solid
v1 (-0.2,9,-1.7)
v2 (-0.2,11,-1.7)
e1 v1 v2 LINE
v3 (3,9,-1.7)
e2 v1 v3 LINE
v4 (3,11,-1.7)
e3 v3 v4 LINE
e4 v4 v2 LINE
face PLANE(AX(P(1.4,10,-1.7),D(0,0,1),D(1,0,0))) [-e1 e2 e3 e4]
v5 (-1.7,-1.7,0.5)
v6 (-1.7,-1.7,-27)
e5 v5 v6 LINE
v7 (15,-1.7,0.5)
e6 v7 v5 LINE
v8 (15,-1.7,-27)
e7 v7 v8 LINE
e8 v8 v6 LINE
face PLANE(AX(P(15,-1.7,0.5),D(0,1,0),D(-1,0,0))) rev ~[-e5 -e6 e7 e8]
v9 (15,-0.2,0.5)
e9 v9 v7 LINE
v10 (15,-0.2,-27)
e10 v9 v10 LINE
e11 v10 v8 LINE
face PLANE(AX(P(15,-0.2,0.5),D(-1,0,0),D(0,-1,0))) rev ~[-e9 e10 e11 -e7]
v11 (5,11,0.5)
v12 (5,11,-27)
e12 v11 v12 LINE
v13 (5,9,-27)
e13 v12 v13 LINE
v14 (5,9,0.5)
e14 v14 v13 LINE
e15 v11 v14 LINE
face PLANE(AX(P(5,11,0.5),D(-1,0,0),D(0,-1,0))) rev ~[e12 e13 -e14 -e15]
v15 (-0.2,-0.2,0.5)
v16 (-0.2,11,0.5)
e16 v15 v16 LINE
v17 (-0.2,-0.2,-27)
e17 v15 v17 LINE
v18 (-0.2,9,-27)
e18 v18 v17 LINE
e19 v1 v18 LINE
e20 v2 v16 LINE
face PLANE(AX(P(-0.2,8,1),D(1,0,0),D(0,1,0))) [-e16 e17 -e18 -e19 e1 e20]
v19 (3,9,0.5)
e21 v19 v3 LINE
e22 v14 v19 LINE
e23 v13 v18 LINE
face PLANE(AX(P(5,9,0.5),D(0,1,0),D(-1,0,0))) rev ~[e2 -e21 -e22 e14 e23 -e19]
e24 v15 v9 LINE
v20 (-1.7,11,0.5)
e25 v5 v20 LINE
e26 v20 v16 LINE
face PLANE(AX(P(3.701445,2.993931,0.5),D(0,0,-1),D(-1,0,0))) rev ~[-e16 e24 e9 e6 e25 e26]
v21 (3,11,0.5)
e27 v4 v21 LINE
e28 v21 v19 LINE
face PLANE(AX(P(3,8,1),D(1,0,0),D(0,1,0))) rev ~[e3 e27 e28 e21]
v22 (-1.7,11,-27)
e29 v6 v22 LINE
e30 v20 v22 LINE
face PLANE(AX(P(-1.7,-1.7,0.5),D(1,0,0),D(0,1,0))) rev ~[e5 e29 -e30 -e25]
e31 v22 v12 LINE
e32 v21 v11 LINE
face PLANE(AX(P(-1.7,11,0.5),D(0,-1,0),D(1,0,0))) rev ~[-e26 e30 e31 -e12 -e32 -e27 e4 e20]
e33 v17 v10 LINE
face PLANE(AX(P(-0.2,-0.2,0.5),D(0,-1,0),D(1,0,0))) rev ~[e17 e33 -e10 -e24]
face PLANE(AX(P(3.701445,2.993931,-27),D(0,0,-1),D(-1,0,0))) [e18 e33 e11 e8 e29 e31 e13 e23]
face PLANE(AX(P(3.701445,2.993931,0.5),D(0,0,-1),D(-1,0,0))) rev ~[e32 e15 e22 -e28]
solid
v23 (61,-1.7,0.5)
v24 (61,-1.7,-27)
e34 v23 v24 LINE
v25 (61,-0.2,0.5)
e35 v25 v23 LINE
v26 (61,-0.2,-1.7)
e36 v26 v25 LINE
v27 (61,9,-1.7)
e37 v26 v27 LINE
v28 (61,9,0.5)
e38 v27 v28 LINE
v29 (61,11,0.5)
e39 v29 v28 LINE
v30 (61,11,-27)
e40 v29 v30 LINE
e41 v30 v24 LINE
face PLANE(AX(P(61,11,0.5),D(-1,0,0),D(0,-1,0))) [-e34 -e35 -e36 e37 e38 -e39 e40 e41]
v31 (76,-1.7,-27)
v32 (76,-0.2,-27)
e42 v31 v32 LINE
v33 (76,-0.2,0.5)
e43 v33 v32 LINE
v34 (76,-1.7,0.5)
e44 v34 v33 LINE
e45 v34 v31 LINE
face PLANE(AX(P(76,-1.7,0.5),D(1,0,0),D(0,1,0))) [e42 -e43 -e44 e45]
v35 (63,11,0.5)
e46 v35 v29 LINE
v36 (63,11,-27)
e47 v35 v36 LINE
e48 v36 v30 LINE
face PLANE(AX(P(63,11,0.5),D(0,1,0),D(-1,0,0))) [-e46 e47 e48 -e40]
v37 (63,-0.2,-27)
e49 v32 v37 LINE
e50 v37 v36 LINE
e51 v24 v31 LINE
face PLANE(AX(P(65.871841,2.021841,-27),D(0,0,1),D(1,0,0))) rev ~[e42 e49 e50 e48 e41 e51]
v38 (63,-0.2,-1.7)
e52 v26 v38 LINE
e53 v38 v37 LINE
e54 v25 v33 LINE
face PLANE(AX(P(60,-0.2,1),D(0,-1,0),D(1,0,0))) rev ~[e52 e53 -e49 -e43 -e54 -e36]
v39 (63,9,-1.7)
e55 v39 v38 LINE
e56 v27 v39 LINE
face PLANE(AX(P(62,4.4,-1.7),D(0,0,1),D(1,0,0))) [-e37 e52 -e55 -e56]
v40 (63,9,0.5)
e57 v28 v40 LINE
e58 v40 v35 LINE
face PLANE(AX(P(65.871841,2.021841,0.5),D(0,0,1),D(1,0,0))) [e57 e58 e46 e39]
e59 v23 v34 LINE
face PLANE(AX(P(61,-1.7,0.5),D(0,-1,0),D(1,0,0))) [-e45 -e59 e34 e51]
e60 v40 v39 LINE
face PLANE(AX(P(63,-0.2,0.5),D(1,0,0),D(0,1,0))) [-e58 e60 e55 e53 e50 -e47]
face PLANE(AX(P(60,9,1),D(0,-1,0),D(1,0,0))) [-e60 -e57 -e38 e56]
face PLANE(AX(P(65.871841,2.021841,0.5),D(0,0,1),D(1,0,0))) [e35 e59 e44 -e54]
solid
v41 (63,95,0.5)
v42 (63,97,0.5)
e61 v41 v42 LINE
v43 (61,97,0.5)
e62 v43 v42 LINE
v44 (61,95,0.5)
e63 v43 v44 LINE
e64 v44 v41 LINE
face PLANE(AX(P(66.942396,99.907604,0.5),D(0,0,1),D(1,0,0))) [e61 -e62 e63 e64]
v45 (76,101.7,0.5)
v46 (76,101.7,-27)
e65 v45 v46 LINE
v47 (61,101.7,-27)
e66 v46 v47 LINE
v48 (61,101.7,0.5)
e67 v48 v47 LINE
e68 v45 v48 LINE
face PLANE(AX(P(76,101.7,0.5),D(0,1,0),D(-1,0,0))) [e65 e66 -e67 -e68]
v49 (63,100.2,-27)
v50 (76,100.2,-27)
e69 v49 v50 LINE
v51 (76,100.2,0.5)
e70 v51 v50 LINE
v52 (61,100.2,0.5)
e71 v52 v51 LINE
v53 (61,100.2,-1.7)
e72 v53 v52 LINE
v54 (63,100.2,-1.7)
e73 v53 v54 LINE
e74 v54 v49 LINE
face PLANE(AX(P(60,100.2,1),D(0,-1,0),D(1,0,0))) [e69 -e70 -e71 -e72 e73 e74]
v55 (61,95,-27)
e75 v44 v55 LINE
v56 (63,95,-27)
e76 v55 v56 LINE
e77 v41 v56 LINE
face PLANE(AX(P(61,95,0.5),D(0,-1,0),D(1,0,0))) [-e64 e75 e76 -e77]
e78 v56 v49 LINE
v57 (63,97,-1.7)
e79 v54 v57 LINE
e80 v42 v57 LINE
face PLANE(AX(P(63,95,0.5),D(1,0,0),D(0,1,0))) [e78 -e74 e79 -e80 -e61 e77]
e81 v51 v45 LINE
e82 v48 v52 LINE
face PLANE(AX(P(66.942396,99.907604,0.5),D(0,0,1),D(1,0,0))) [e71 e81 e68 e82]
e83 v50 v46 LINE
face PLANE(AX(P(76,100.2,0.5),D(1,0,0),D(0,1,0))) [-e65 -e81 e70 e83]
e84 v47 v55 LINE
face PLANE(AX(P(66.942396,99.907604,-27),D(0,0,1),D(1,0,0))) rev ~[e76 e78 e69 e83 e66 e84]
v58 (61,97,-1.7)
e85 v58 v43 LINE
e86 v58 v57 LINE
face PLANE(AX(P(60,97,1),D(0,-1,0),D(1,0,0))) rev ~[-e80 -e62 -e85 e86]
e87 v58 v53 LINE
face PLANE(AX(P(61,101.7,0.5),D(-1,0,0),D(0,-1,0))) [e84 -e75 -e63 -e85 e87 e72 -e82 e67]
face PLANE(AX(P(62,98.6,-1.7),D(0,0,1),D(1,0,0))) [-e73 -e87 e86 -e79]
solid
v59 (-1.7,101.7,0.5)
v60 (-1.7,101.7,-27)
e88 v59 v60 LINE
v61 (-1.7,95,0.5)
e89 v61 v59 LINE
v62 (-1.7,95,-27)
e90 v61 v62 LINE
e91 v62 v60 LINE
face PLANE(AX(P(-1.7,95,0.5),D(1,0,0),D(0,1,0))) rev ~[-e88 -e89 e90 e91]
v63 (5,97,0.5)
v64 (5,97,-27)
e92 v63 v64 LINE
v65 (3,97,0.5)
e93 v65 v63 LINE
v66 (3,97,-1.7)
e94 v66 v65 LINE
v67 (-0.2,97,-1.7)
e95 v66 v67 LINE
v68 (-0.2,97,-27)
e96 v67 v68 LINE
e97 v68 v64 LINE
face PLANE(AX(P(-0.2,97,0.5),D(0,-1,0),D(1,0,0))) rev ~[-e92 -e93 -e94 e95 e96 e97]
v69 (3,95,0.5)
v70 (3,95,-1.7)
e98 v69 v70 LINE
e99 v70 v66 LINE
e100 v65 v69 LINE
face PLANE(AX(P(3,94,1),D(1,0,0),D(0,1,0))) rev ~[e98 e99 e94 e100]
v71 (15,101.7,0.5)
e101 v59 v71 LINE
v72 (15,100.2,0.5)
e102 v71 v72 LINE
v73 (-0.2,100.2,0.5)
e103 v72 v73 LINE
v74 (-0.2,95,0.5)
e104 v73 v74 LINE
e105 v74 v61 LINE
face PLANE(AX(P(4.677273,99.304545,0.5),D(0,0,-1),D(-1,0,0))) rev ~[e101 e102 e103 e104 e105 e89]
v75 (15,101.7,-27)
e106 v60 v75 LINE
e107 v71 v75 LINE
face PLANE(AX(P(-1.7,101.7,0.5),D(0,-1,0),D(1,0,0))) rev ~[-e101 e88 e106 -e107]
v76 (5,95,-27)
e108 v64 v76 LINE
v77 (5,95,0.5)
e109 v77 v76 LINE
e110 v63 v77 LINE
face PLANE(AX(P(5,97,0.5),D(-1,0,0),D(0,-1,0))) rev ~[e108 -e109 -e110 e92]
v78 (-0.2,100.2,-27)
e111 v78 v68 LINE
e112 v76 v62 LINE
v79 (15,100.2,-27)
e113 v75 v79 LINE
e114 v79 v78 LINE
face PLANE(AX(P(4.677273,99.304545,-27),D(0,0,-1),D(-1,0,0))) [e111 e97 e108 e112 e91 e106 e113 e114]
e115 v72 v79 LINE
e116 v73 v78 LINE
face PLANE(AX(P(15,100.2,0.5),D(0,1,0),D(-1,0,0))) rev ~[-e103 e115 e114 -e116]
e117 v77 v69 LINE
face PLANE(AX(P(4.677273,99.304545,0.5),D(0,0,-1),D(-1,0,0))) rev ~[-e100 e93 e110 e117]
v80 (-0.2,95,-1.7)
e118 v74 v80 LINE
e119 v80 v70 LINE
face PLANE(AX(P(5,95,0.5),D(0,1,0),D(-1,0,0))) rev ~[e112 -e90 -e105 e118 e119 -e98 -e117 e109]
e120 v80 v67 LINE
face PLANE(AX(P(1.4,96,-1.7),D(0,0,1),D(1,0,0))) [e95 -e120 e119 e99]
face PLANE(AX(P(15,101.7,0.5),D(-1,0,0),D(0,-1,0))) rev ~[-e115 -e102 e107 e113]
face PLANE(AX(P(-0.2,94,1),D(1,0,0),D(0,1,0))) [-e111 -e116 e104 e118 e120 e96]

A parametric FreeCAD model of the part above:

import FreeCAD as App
import Part
import Sketcher

doc = App.newDocument("Part")
body = doc.addObject("PartDesign::Body", "Body")
body.AllowCompound = True

sketch1 = body.newObject("Sketcher::SketchObject", "Sketch")
sketch1.AttachmentSupport = (doc.getObject("XY_Plane"), [""])
sketch1.MapMode = "FlatFace"
sketch1.AttachmentOffset = App.Placement(App.Vector(0, 0, 1), App.Rotation())
sketch1.addGeometry([
    Part.LineSegment(App.Vector(-0.2, 98, 0), App.Vector(-0.2, 94, 0)),
    Part.LineSegment(App.Vector(-0.2, 94, 0), App.Vector(3, 94, 0)),
    Part.LineSegment(App.Vector(3, 94, 0), App.Vector(3, 98, 0)),
    Part.LineSegment(App.Vector(3, 98, 0), App.Vector(-0.2, 98, 0)),
    Part.LineSegment(App.Vector(60, 100.2, 0), App.Vector(60, 97, 0)),
    Part.LineSegment(App.Vector(60, 97, 0), App.Vector(64, 97, 0)),
    Part.LineSegment(App.Vector(64, 97, 0), App.Vector(64, 100.2, 0)),
    Part.LineSegment(App.Vector(64, 100.2, 0), App.Vector(60, 100.2, 0)),
    Part.LineSegment(App.Vector(-0.2, 12, 0), App.Vector(-0.2, 8, 0)),
    Part.LineSegment(App.Vector(-0.2, 8, 0), App.Vector(3, 8, 0)),
    Part.LineSegment(App.Vector(3, 8, 0), App.Vector(3, 12, 0)),
    Part.LineSegment(App.Vector(3, 12, 0), App.Vector(-0.2, 12, 0)),
    Part.LineSegment(App.Vector(60, 9, 0), App.Vector(60, -0.2, 0)),
    Part.LineSegment(App.Vector(60, -0.2, 0), App.Vector(64, -0.2, 0)),
    Part.LineSegment(App.Vector(64, -0.2, 0), App.Vector(64, 9, 0)),
    Part.LineSegment(App.Vector(64, 9, 0), App.Vector(60, 9, 0)),
], False)
sketch1.addConstraint([
    Sketcher.Constraint("Coincident", 0, 2, 1, 1),
    Sketcher.Constraint("Coincident", 1, 2, 2, 1),
    Sketcher.Constraint("Coincident", 2, 2, 3, 1),
    Sketcher.Constraint("Coincident", 3, 2, 0, 1),
    Sketcher.Constraint("Coincident", 4, 2, 5, 1),
    Sketcher.Constraint("Coincident", 5, 2, 6, 1),
    Sketcher.Constraint("Coincident", 6, 2, 7, 1),
    Sketcher.Constraint("Coincident", 7, 2, 4, 1),
    Sketcher.Constraint("Coincident", 8, 2, 9, 1),
    Sketcher.Constraint("Coincident", 9, 2, 10, 1),
    Sketcher.Constraint("Coincident", 10, 2, 11, 1),
    Sketcher.Constraint("Coincident", 11, 2, 8, 1),
    Sketcher.Constraint("Coincident", 12, 2, 13, 1),
    Sketcher.Constraint("Coincident", 13, 2, 14, 1),
    Sketcher.Constraint("Coincident", 14, 2, 15, 1),
    Sketcher.Constraint("Coincident", 15, 2, 12, 1),
    Sketcher.Constraint("Vertical", 0),
    Sketcher.Constraint("Horizontal", 1),
    Sketcher.Constraint("Vertical", 2),
    Sketcher.Constraint("Horizontal", 3),
    Sketcher.Constraint("Vertical", 4),
    Sketcher.Constraint("Horizontal", 5),
    Sketcher.Constraint("Vertical", 6),
    Sketcher.Constraint("Horizontal", 7),
    Sketcher.Constraint("Vertical", 8),
    Sketcher.Constraint("Horizontal", 9),
    Sketcher.Constraint("Vertical", 10),
    Sketcher.Constraint("Horizontal", 11),
    Sketcher.Constraint("Vertical", 12),
    Sketcher.Constraint("Horizontal", 13),
    Sketcher.Constraint("Vertical", 14),
    Sketcher.Constraint("Horizontal", 15),
    Sketcher.Constraint("Vertical", 3, 2, 8, 2),
    Sketcher.Constraint("Vertical", 2, 2, 9, 2),
    Sketcher.Constraint("Vertical", 7, 2, 12, 2),
    Sketcher.Constraint("Vertical", 6, 2, 13, 2),
    Sketcher.Constraint("Equal", 15, 0),
    Sketcher.Constraint("Equal", 11, 4),
    Sketcher.Constraint("Equal", 2, 8),
    Sketcher.Constraint("DistanceX", 5, 1, 5, 2, 4.0),
    Sketcher.Constraint("DistanceX", 1, 1, 1, 2, 3.2),
    Sketcher.Constraint("DistanceY", 12, 2, 12, 1, 9.2),
    Sketcher.Constraint("DistanceY", -1, 1, 0, 2, 94.0),
    Sketcher.Constraint("DistanceX", -1, 1, 1, 2, 3.0),
    Sketcher.Constraint("DistanceX", -1, 1, 4, 2, 60.0),
    Sketcher.Constraint("DistanceY", -1, 1, 4, 2, 97.0),
    Sketcher.Constraint("DistanceY", -1, 1, 8, 2, 8.0),
    Sketcher.Constraint("DistanceY", -1, 1, 14, 2, 9.0),
])
pad1 = body.newObject("PartDesign::Pad", "Pad")
pad1.Profile = sketch1
pad1.Length = 2.7
pad1.Reversed = True
body2 = doc.addObject("PartDesign::Body", "Body001")
body2.AllowCompound = True

sketch2 = body2.newObject("Sketcher::SketchObject", "Sketch001")
sketch2.AttachmentSupport = (doc.getObject("XY_Plane001"), [""])
sketch2.MapMode = "FlatFace"
sketch2.AttachmentOffset = App.Placement(App.Vector(0, 0, 0.5), App.Rotation())
sketch2.addGeometry([
    Part.LineSegment(App.Vector(-1.7, 95, 0), App.Vector(5, 95, 0)),
    Part.LineSegment(App.Vector(5, 95, 0), App.Vector(5, 97, 0)),
    Part.LineSegment(App.Vector(5, 97, 0), App.Vector(-0.2, 97, 0)),
    Part.LineSegment(App.Vector(-0.2, 97, 0), App.Vector(-0.2, 100.2, 0)),
    Part.LineSegment(App.Vector(-0.2, 100.2, 0), App.Vector(15, 100.2, 0)),
    Part.LineSegment(App.Vector(15, 100.2, 0), App.Vector(15, 101.7, 0)),
    Part.LineSegment(App.Vector(15, 101.7, 0), App.Vector(-1.7, 101.7, 0)),
    Part.LineSegment(App.Vector(-1.7, 101.7, 0), App.Vector(-1.7, 95, 0)),
    Part.LineSegment(App.Vector(5, 9, 0), App.Vector(5, 11, 0)),
    Part.LineSegment(App.Vector(5, 11, 0), App.Vector(-1.7, 11, 0)),
    Part.LineSegment(App.Vector(-1.7, 11, 0), App.Vector(-1.7, -1.7, 0)),
    Part.LineSegment(App.Vector(-1.7, -1.7, 0), App.Vector(15, -1.7, 0)),
    Part.LineSegment(App.Vector(15, -1.7, 0), App.Vector(15, -0.2, 0)),
    Part.LineSegment(App.Vector(15, -0.2, 0), App.Vector(-0.2, -0.2, 0)),
    Part.LineSegment(App.Vector(-0.2, -0.2, 0), App.Vector(-0.2, 9, 0)),
    Part.LineSegment(App.Vector(-0.2, 9, 0), App.Vector(5, 9, 0)),
    Part.LineSegment(App.Vector(61, 95, 0), App.Vector(63, 95, 0)),
    Part.LineSegment(App.Vector(63, 95, 0), App.Vector(63, 100.2, 0)),
    Part.LineSegment(App.Vector(63, 100.2, 0), App.Vector(76, 100.2, 0)),
    Part.LineSegment(App.Vector(76, 100.2, 0), App.Vector(76, 101.7, 0)),
    Part.LineSegment(App.Vector(76, 101.7, 0), App.Vector(61, 101.7, 0)),
    Part.LineSegment(App.Vector(61, 101.7, 0), App.Vector(61, 95, 0)),
    Part.LineSegment(App.Vector(61, 11, 0), App.Vector(61, -1.7, 0)),
    Part.LineSegment(App.Vector(61, -1.7, 0), App.Vector(76, -1.7, 0)),
    Part.LineSegment(App.Vector(76, -1.7, 0), App.Vector(76, -0.2, 0)),
    Part.LineSegment(App.Vector(76, -0.2, 0), App.Vector(63, -0.2, 0)),
    Part.LineSegment(App.Vector(63, -0.2, 0), App.Vector(63, 11, 0)),
    Part.LineSegment(App.Vector(63, 11, 0), App.Vector(61, 11, 0)),
], False)
sketch2.addConstraint([
    Sketcher.Constraint("Coincident", 0, 2, 1, 1),
    Sketcher.Constraint("Coincident", 1, 2, 2, 1),
    Sketcher.Constraint("Coincident", 2, 2, 3, 1),
    Sketcher.Constraint("Coincident", 3, 2, 4, 1),
    Sketcher.Constraint("Coincident", 4, 2, 5, 1),
    Sketcher.Constraint("Coincident", 5, 2, 6, 1),
    Sketcher.Constraint("Coincident", 6, 2, 7, 1),
    Sketcher.Constraint("Coincident", 7, 2, 0, 1),
    Sketcher.Constraint("Coincident", 8, 2, 9, 1),
    Sketcher.Constraint("Coincident", 9, 2, 10, 1),
    Sketcher.Constraint("Coincident", 10, 2, 11, 1),
    Sketcher.Constraint("Coincident", 11, 2, 12, 1),
    Sketcher.Constraint("Coincident", 12, 2, 13, 1),
    Sketcher.Constraint("Coincident", 13, 2, 14, 1),
    Sketcher.Constraint("Coincident", 14, 2, 15, 1),
    Sketcher.Constraint("Coincident", 15, 2, 8, 1),
    Sketcher.Constraint("Coincident", 16, 2, 17, 1),
    Sketcher.Constraint("Coincident", 17, 2, 18, 1),
    Sketcher.Constraint("Coincident", 18, 2, 19, 1),
    Sketcher.Constraint("Coincident", 19, 2, 20, 1),
    Sketcher.Constraint("Coincident", 20, 2, 21, 1),
    Sketcher.Constraint("Coincident", 21, 2, 16, 1),
    Sketcher.Constraint("Coincident", 22, 2, 23, 1),
    Sketcher.Constraint("Coincident", 23, 2, 24, 1),
    Sketcher.Constraint("Coincident", 24, 2, 25, 1),
    Sketcher.Constraint("Coincident", 25, 2, 26, 1),
    Sketcher.Constraint("Coincident", 26, 2, 27, 1),
    Sketcher.Constraint("Coincident", 27, 2, 22, 1),
    Sketcher.Constraint("Horizontal", 0),
    Sketcher.Constraint("Vertical", 1),
    Sketcher.Constraint("Horizontal", 2),
    Sketcher.Constraint("Vertical", 3),
    Sketcher.Constraint("Horizontal", 4),
    Sketcher.Constraint("Vertical", 5),
    Sketcher.Constraint("Horizontal", 6),
    Sketcher.Constraint("Vertical", 7),
    Sketcher.Constraint("Vertical", 8),
    Sketcher.Constraint("Horizontal", 9),
    Sketcher.Constraint("Vertical", 10),
    Sketcher.Constraint("Horizontal", 11),
    Sketcher.Constraint("Vertical", 12),
    Sketcher.Constraint("Horizontal", 13),
    Sketcher.Constraint("Vertical", 14),
    Sketcher.Constraint("Horizontal", 15),
    Sketcher.Constraint("Horizontal", 16),
    Sketcher.Constraint("Vertical", 17),
    Sketcher.Constraint("Horizontal", 18),
    Sketcher.Constraint("Vertical", 19),
    Sketcher.Constraint("Horizontal", 20),
    Sketcher.Constraint("Vertical", 21),
    Sketcher.Constraint("Vertical", 22),
    Sketcher.Constraint("Horizontal", 23),
    Sketcher.Constraint("Vertical", 24),
    Sketcher.Constraint("Horizontal", 25),
    Sketcher.Constraint("Vertical", 26),
    Sketcher.Constraint("Horizontal", 27),
    Sketcher.Constraint("Horizontal", 7, 2, 16, 2),
    Sketcher.Constraint("Horizontal", 4, 2, 17, 2),
    Sketcher.Constraint("Horizontal", 6, 2, 19, 2),
    Sketcher.Constraint("Horizontal", 11, 2, 22, 2),
    Sketcher.Constraint("Horizontal", 13, 2, 24, 2),
    Sketcher.Constraint("Horizontal", 9, 2, 26, 2),
    Sketcher.Constraint("Vertical", 1, 2, 8, 2),
    Sketcher.Constraint("Vertical", 7, 2, 9, 2),
    Sketcher.Constraint("Vertical", 5, 2, 11, 2),
    Sketcher.Constraint("Vertical", 3, 2, 13, 2),
    Sketcher.Constraint("Vertical", 21, 2, 22, 2),
    Sketcher.Constraint("Vertical", 19, 2, 23, 2),
    Sketcher.Constraint("Vertical", 17, 2, 25, 2),
    Sketcher.Constraint("Equal", 27, 1),
    Sketcher.Constraint("Equal", 9, 7),
    Sketcher.Constraint("Equal", 1, 8),
    Sketcher.Constraint("Equal", 5, 12),
    Sketcher.Constraint("Equal", 15, 17),
    Sketcher.Constraint("DistanceX", 16, 1, 16, 2, 2.0),
    Sketcher.Constraint("DistanceX", 18, 1, 18, 2, 13.0),
    Sketcher.Constraint("DistanceX", 0, 1, 0, 2, 6.7),
    Sketcher.Constraint("DistanceX", 2, 2, 2, 1, 5.2),
    Sketcher.Constraint("DistanceX", 4, 1, 4, 2, 15.2),
    Sketcher.Constraint("DistanceY", 10, 2, 10, 1, 12.7),
    Sketcher.Constraint("DistanceX", -1, 1, 0, 2, 5.0),
    Sketcher.Constraint("DistanceY", -1, 1, 0, 2, 95.0),
    Sketcher.Constraint("DistanceY", -1, 1, 8, 2, 11.0),
    Sketcher.Constraint("DistanceX", -1, 1, 16, 2, 63.0),
])
pad2 = body2.newObject("PartDesign::Pad", "Pad001")
pad2.Profile = sketch2
pad2.Length = 27.5
pad2.Reversed = True
doc.recompute()

boolean = body2.newObject("PartDesign::Boolean", "Boolean")
boolean.Type = "Cut"
boolean.addObjects([body])

doc.recompute()
